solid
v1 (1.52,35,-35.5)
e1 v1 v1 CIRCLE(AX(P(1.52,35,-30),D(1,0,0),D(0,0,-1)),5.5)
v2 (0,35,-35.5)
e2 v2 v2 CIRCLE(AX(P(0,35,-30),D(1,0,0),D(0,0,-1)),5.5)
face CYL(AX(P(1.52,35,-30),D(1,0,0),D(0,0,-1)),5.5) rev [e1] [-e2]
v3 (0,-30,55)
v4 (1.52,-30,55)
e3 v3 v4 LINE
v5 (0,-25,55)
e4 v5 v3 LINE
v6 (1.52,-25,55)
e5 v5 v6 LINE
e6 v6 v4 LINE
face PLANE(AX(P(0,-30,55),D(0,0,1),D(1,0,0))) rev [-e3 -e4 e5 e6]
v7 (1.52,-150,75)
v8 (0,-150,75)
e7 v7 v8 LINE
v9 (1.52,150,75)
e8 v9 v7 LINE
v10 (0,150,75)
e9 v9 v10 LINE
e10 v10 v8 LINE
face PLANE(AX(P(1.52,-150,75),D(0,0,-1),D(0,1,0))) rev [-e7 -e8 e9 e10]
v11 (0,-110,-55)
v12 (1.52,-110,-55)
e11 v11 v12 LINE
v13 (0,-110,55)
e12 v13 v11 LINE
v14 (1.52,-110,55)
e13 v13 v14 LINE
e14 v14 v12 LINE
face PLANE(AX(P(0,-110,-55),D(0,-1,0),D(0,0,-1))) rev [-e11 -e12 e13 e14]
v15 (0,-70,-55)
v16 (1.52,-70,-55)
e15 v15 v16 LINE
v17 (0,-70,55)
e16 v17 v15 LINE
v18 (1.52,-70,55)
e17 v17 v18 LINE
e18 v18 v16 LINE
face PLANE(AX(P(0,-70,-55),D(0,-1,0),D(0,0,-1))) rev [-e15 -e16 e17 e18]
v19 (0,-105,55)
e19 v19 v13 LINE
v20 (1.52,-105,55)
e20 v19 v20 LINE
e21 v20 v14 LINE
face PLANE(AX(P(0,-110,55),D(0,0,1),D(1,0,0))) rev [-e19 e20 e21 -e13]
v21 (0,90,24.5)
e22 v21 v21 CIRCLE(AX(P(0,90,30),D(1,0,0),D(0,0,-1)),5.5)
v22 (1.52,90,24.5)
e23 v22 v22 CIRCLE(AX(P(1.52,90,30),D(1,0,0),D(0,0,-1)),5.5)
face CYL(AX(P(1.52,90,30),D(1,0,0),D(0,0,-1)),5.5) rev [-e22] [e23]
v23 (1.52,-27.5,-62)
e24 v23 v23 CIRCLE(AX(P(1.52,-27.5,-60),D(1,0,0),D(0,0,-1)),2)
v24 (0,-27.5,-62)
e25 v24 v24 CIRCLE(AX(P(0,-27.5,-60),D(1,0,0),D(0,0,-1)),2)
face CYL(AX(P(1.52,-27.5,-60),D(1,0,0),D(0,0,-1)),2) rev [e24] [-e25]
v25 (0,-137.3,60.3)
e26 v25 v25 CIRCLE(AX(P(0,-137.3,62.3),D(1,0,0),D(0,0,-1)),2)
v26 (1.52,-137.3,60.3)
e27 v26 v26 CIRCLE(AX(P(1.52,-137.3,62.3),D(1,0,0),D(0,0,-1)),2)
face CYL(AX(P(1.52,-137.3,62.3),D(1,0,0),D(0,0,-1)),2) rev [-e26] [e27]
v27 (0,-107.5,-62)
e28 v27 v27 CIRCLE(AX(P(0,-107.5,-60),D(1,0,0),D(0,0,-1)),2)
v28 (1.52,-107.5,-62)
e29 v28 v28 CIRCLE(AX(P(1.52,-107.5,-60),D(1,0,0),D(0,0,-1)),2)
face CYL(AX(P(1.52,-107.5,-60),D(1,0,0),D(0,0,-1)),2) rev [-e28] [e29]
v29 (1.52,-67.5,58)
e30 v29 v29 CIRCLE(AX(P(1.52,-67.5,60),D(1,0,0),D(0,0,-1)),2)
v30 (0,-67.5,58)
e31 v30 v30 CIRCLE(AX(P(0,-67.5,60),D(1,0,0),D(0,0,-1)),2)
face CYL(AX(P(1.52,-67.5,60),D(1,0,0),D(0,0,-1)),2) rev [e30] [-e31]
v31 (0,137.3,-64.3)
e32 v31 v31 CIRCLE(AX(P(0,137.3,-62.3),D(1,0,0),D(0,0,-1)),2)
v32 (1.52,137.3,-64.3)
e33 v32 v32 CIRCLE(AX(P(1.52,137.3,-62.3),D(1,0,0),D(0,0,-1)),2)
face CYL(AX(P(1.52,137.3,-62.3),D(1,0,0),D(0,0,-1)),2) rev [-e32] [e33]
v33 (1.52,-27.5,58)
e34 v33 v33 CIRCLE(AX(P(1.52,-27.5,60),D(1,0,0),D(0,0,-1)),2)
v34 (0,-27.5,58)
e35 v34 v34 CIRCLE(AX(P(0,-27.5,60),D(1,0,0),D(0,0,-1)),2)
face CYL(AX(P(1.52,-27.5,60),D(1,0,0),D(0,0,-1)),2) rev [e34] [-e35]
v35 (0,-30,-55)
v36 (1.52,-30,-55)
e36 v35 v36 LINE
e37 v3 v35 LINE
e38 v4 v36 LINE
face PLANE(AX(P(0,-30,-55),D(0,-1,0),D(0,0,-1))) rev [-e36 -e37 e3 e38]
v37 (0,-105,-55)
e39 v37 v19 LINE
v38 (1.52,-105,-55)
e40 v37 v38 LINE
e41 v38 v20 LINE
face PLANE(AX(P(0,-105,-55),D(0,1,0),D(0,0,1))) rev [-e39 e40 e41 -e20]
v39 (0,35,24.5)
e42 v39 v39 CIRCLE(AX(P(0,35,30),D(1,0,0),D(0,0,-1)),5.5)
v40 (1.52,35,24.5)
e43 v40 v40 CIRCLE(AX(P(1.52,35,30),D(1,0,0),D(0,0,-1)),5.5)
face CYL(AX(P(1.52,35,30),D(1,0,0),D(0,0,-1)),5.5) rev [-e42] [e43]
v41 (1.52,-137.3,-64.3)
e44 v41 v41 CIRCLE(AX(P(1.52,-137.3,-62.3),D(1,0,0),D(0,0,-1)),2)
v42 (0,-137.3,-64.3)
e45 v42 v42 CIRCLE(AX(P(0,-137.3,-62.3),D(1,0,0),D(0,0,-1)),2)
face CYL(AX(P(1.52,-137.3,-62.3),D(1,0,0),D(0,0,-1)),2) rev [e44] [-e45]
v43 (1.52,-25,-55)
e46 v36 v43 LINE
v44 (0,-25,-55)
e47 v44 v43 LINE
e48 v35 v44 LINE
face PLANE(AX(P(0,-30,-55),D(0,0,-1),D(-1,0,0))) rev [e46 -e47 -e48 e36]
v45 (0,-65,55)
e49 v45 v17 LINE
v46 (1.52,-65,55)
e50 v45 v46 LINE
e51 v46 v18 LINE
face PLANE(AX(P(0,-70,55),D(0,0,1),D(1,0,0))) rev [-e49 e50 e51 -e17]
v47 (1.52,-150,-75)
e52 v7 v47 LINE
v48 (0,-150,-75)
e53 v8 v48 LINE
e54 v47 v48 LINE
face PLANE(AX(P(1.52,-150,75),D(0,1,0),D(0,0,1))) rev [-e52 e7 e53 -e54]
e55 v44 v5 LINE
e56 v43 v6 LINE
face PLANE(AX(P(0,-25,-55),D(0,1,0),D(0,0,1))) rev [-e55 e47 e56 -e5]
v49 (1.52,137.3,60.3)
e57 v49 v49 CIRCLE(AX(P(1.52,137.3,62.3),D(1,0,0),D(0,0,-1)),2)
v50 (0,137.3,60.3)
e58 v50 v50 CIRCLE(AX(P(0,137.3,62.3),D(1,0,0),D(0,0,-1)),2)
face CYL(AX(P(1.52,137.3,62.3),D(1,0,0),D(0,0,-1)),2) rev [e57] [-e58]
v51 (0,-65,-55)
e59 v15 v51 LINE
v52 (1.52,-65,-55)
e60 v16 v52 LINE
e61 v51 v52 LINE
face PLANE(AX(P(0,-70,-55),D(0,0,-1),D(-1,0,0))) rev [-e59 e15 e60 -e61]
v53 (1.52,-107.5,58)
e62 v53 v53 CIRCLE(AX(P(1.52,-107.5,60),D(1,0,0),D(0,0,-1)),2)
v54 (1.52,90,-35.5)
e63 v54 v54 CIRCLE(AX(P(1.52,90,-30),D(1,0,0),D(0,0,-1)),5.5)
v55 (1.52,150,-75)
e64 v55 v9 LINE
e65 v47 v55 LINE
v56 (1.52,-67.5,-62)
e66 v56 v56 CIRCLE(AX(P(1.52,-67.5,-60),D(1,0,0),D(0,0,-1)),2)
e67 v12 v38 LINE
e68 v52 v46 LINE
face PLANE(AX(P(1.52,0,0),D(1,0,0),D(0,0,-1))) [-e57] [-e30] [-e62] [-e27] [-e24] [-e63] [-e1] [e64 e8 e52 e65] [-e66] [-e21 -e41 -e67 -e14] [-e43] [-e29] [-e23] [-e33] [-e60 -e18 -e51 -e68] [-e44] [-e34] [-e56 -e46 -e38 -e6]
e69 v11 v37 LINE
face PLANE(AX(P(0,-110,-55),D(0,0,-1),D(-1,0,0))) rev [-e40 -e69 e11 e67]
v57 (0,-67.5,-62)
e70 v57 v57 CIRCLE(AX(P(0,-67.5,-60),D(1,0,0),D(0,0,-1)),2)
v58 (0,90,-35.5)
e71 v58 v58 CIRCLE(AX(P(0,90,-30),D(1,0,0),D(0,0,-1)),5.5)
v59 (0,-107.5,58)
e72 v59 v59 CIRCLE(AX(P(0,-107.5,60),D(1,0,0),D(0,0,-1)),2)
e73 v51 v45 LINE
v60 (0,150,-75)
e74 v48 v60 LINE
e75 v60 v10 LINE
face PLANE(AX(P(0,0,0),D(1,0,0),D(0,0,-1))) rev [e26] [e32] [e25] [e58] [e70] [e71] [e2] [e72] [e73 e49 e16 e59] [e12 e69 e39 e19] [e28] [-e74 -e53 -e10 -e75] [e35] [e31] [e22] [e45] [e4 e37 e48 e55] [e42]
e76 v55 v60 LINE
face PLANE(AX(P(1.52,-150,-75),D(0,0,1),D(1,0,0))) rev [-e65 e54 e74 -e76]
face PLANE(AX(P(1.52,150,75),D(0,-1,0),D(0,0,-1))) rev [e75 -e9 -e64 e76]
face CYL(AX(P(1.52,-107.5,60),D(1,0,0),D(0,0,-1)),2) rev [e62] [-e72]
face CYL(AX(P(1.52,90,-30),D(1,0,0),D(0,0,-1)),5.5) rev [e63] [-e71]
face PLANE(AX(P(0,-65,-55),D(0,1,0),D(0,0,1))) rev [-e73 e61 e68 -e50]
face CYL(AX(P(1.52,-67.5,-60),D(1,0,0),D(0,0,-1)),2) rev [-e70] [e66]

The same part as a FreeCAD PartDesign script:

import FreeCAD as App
import Part
import Sketcher


def add_polygon(sketch, points):
    """Adds a closed chain of lines whose ends are joined by coincident constraints."""
    first, n = sketch.GeometryCount, len(points)
    for a, b in zip(points, points[1:] + points[:1]):
        sketch.addGeometry(Part.LineSegment(App.Vector(*a, 0), App.Vector(*b, 0)), False)
    for i in range(n):
        sketch.addConstraint(Sketcher.Constraint("Coincident", first + i, 2, first + (i + 1) % n, 1))

doc = App.newDocument("Part")
body = doc.addObject("PartDesign::Body", "Body")

# Sketch on YZ plane
sketch1 = body.newObject("Sketcher::SketchObject", "Sketch")
sketch1.AttachmentSupport = (doc.getObject("YZ_Plane"), [""])
sketch1.MapMode = "FlatFace"
add_polygon(sketch1, [(-150, 75), (-150, -75), (150, -75), (150, 75)])  # lines 0-3
sketch1.addConstraint([
    Sketcher.Constraint("Vertical", 0),
    Sketcher.Constraint("Horizontal", 1),
    Sketcher.Constraint("Vertical", 2),
    Sketcher.Constraint("Horizontal", 3),
    Sketcher.Constraint("Symmetric", 0, 2, 2, 2, -1, 1),
    Sketcher.Constraint("DistanceX", 1, 1, 1, 2, 300.0),
    Sketcher.Constraint("DistanceY", 0, 2, 0, 1, 150.0),
])
pad1 = body.newObject("PartDesign::Pad", "Pad")
pad1.Profile = sketch1
pad1.Length = 1.52

# Sketch on YZ plane
sketch2 = body.newObject("Sketcher::SketchObject", "Sketch001")
sketch2.AttachmentSupport = (doc.getObject("YZ_Plane"), [""])
sketch2.MapMode = "FlatFace"
sketch2.AttachmentOffset = App.Placement(App.Vector(0, 0, 1.52), App.Rotation())
sketch2.addGeometry(Part.Circle(App.Vector(-137.3, 62.3, 0), App.Vector(0, 0, 1), 2), False)
sketch2.addConstraint([
    Sketcher.Constraint("Diameter", 0, 4.0),
    Sketcher.Constraint("DistanceX", 0, 3, -1, 1, 137.3),
    Sketcher.Constraint("DistanceY", -1, 1, 0, 3, 62.3),
])
doc.recompute()
hole = body.newObject("PartDesign::Hole", "Hole")
hole.Profile = sketch2
hole.ThreadType = "None"
hole.Diameter = 4
hole.DepthType = "ThroughAll"
doc.recompute()

mirrored = body.newObject("PartDesign::Mirrored", "Mirrored")
mirrored.Originals = [hole]
mirrored.MirrorPlane = (doc.getObject("XZ_Plane"), [""])
body.Tip = mirrored
doc.recompute()

mirrored2 = body.newObject("PartDesign::Mirrored", "Mirrored001")
mirrored2.Originals = [hole]
mirrored2.MirrorPlane = (doc.getObject("XY_Plane"), [""])
body.Tip = mirrored2

# Sketch on YZ plane
sketch3 = body.newObject("Sketcher::SketchObject", "Sketch002")
sketch3.AttachmentSupport = (doc.getObject("YZ_Plane"), [""])
sketch3.MapMode = "FlatFace"
sketch3.AttachmentOffset = App.Placement(App.Vector(0, 0, 1.52), App.Rotation())
sketch3.addGeometry(Part.Circle(App.Vector(137.3, -62.3, 0), App.Vector(0, 0, 1), 2), False)
sketch3.addConstraint([
    Sketcher.Constraint("Diameter", 0, 4.0),
    Sketcher.Constraint("DistanceX", -1, 1, 0, 3, 137.3),
    Sketcher.Constraint("DistanceY", 0, 3, -1, 1, 62.3),
])
doc.recompute()
hole2 = body.newObject("PartDesign::Hole", "Hole001")
hole2.Profile = sketch3
hole2.ThreadType = "None"
hole2.Diameter = 4
hole2.DepthType = "ThroughAll"

# Sketch on YZ plane
sketch4 = body.newObject("Sketcher::SketchObject", "Sketch003")
sketch4.AttachmentSupport = (doc.getObject("YZ_Plane"), [""])
sketch4.MapMode = "FlatFace"
sketch4.AttachmentOffset = App.Placement(App.Vector(0, 0, 1.52), App.Rotation())
add_polygon(sketch4, [(-110, 55), (-110, -55), (-105, -55), (-105, 55)])  # lines 0-3
sketch4.addConstraint([
    Sketcher.Constraint("Vertical", 0),
    Sketcher.Constraint("Horizontal", 1),
    Sketcher.Constraint("Vertical", 2),
    Sketcher.Constraint("Horizontal", 3),
    Sketcher.Constraint("DistanceX", 1, 1, 1, 2, 5.0),
    Sketcher.Constraint("DistanceY", 0, 2, 0, 1, 110.0),
    Sketcher.Constraint("DistanceX", 0, 2, -1, 1, 110.0),
    Sketcher.Constraint("DistanceY", 0, 2, -1, 1, 55.0),
])
pocket1 = body.newObject("PartDesign::Pocket", "Pocket")
pocket1.Profile = sketch4
pocket1.Type = "ThroughAll"

# Sketch on YZ plane
sketch5 = body.newObject("Sketcher::SketchObject", "Sketch004")
sketch5.AttachmentSupport = (doc.getObject("YZ_Plane"), [""])
sketch5.MapMode = "FlatFace"
sketch5.AttachmentOffset = App.Placement(App.Vector(0, 0, 1.52), App.Rotation())
sketch5.addGeometry(Part.Circle(App.Vector(-107.5, 60, 0), App.Vector(0, 0, 1), 2), False)
sketch5.addConstraint([
    Sketcher.Constraint("Diameter", 0, 4.0),
    Sketcher.Constraint("DistanceY", -1, 1, 0, 3, 60.0),
    Sketcher.Constraint("DistanceX", 0, 3, -1, 1, 107.5),
])
doc.recompute()
hole3 = body.newObject("PartDesign::Hole", "Hole002")
hole3.Profile = sketch5
hole3.ThreadType = "None"
hole3.Diameter = 4
hole3.DepthType = "ThroughAll"
doc.recompute()

mirrored3 = body.newObject("PartDesign::Mirrored", "Mirrored002")
mirrored3.Originals = [hole3]
mirrored3.MirrorPlane = (doc.getObject("XY_Plane"), [""])
body.Tip = mirrored3

# Sketch on YZ plane
sketch6 = body.newObject("Sketcher::SketchObject", "Sketch005")
sketch6.AttachmentSupport = (doc.getObject("YZ_Plane"), [""])
sketch6.MapMode = "FlatFace"
sketch6.AttachmentOffset = App.Placement(App.Vector(0, 0, 1.52), App.Rotation())
add_polygon(sketch6, [(-70, 55), (-70, -55), (-65, -55), (-65, 55)])  # lines 0-3
sketch6.addConstraint([
    Sketcher.Constraint("Vertical", 0),
    Sketcher.Constraint("Horizontal", 1),
    Sketcher.Constraint("Vertical", 2),
    Sketcher.Constraint("Horizontal", 3),
    Sketcher.Constraint("DistanceX", 1, 1, 1, 2, 5.0),
    Sketcher.Constraint("DistanceY", 0, 2, 0, 1, 110.0),
    Sketcher.Constraint("DistanceX", 0, 2, -1, 1, 70.0),
    Sketcher.Constraint("DistanceY", 0, 2, -1, 1, 55.0),
])
pocket2 = body.newObject("PartDesign::Pocket", "Pocket001")
pocket2.Profile = sketch6
pocket2.Type = "ThroughAll"

# Sketch on YZ plane
sketch7 = body.newObject("Sketcher::SketchObject", "Sketch006")
sketch7.AttachmentSupport = (doc.getObject("YZ_Plane"), [""])
sketch7.MapMode = "FlatFace"
sketch7.AttachmentOffset = App.Placement(App.Vector(0, 0, 1.52), App.Rotation())
add_polygon(sketch7, [(-30, 55), (-30, -55), (-25, -55), (-25, 55)])  # lines 0-3
sketch7.addConstraint([
    Sketcher.Constraint("Vertical", 0),
    Sketcher.Constraint("Horizontal", 1),
    Sketcher.Constraint("Vertical", 2),
    Sketcher.Constraint("Horizontal", 3),
    Sketcher.Constraint("DistanceX", 1, 1, 1, 2, 5.0),
    Sketcher.Constraint("DistanceY", 0, 2, 0, 1, 110.0),
    Sketcher.Constraint("DistanceX", 0, 2, -1, 1, 30.0),
    Sketcher.Constraint("DistanceY", 0, 2, -1, 1, 55.0),
])
pocket3 = body.newObject("PartDesign::Pocket", "Pocket002")
pocket3.Profile = sketch7
pocket3.Type = "ThroughAll"

# Sketch on YZ plane
sketch8 = body.newObject("Sketcher::SketchObject", "Sketch007")
sketch8.AttachmentSupport = (doc.getObject("YZ_Plane"), [""])
sketch8.MapMode = "FlatFace"
sketch8.AttachmentOffset = App.Placement(App.Vector(0, 0, 1.52), App.Rotation())
sketch8.addGeometry(Part.Circle(App.Vector(-67.5, 60, 0), App.Vector(0, 0, 1), 2), False)
sketch8.addConstraint([
    Sketcher.Constraint("Diameter", 0, 4.0),
    Sketcher.Constraint("DistanceY", -1, 1, 0, 3, 60.0),
    Sketcher.Constraint("DistanceX", 0, 3, -1, 1, 67.5),
])
doc.recompute()
hole4 = body.newObject("PartDesign::Hole", "Hole003")
hole4.Profile = sketch8
hole4.ThreadType = "None"
hole4.Diameter = 4
hole4.DepthType = "ThroughAll"
doc.recompute()

mirrored4 = body.newObject("PartDesign::Mirrored", "Mirrored003")
mirrored4.Originals = [hole4]
mirrored4.MirrorPlane = (doc.getObject("XY_Plane"), [""])
body.Tip = mirrored4

# Sketch on YZ plane
sketch9 = body.newObject("Sketcher::SketchObject", "Sketch008")
sketch9.AttachmentSupport = (doc.getObject("YZ_Plane"), [""])
sketch9.MapMode = "FlatFace"
sketch9.AttachmentOffset = App.Placement(App.Vector(0, 0, 1.52), App.Rotation())
sketch9.addGeometry(Part.Circle(App.Vector(-27.5, 60, 0), App.Vector(0, 0, 1), 2), False)
sketch9.addConstraint([
    Sketcher.Constraint("Diameter", 0, 4.0),
    Sketcher.Constraint("DistanceY", -1, 1, 0, 3, 60.0),
    Sketcher.Constraint("DistanceX", 0, 3, -1, 1, 27.5),
])
doc.recompute()
hole5 = body.newObject("PartDesign::Hole", "Hole004")
hole5.Profile = sketch9
hole5.ThreadType = "None"
hole5.Diameter = 4
hole5.DepthType = "ThroughAll"
doc.recompute()

mirrored5 = body.newObject("PartDesign::Mirrored", "Mirrored004")
mirrored5.Originals = [hole5]
mirrored5.MirrorPlane = (doc.getObject("XY_Plane"), [""])
body.Tip = mirrored5

# Sketch on YZ plane
sketch10 = body.newObject("Sketcher::SketchObject", "Sketch009")
sketch10.AttachmentSupport = (doc.getObject("YZ_Plane"), [""])
sketch10.MapMode = "FlatFace"
sketch10.AttachmentOffset = App.Placement(App.Vector(0, 0, 1.52), App.Rotation())
sketch10.addGeometry([
    Part.Circle(App.Vector(35, 30, 0), App.Vector(0, 0, 1), 5.5),
    Part.Circle(App.Vector(90, 30, 0), App.Vector(0, 0, 1), 5.5),
], False)
sketch10.addConstraint([
    Sketcher.Constraint("Equal", 0, 1),
    Sketcher.Constraint("Horizontal", 0, 3, 1, 3),
    Sketcher.Constraint("Diameter", 0, 11.0),
    Sketcher.Constraint("DistanceX", -1, 1, 0, 3, 35.0),
    Sketcher.Constraint("DistanceY", -1, 1, 0, 3, 30.0),
    Sketcher.Constraint("DistanceX", -1, 1, 1, 3, 90.0),
])
doc.recompute()
hole6 = body.newObject("PartDesign::Hole", "Hole005")
hole6.Profile = sketch10
hole6.ThreadType = "None"
hole6.Diameter = 11
hole6.DepthType = "ThroughAll"
doc.recompute()

mirrored6 = body.newObject("PartDesign::Mirrored", "Mirrored005")
mirrored6.Originals = [hole6]
mirrored6.MirrorPlane = (doc.getObject("XY_Plane"), [""])
body.Tip = mirrored6

doc.recompute()
